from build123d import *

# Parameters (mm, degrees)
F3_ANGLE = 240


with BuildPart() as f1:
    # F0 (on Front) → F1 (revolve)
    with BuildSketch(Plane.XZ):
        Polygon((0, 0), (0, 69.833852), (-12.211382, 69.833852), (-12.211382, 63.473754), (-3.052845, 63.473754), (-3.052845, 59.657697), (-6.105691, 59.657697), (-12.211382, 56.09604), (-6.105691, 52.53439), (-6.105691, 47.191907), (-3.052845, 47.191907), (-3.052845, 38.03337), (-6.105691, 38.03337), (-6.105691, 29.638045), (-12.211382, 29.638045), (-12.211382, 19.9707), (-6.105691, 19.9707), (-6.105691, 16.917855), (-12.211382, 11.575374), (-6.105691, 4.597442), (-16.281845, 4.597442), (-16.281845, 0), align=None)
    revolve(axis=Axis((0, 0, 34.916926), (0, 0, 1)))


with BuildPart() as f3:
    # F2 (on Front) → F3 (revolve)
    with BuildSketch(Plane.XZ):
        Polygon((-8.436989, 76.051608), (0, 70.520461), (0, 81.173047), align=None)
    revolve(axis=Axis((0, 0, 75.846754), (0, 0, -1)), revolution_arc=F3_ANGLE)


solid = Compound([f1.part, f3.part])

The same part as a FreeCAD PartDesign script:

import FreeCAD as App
import Part
import Sketcher

V = App.Vector
Q = App.Units.Quantity

doc = App.newDocument("Part")
body = doc.addObject("PartDesign::Body", "Body")

sketch1 = body.newObject("Sketcher::SketchObject", "Sketch")
sketch1.AttachmentSupport = (doc.getObject("XZ_Plane"), [""])
sketch1.MapMode = "FlatFace"
sketch1.addGeometry([
    Part.LineSegment(V(0, 0, 0), V(0, 69.833852, 0)),
    Part.LineSegment(V(0, 69.833852, 0), V(-12.211382, 69.833852, 0)),
    Part.LineSegment(V(-12.211382, 69.833852, 0), V(-12.211382, 63.473754, 0)),
    Part.LineSegment(V(-12.211382, 63.473754, 0), V(-3.052845, 63.473754, 0)),
    Part.LineSegment(V(-3.052845, 63.473754, 0), V(-3.052845, 59.657697, 0)),
    Part.LineSegment(V(-3.052845, 59.657697, 0), V(-6.105691, 59.657697, 0)),
    Part.LineSegment(V(-6.105691, 59.657697, 0), V(-12.211382, 56.09604, 0)),
    Part.LineSegment(V(-12.211382, 56.09604, 0), V(-6.105691, 52.53439, 0)),
    Part.LineSegment(V(-6.105691, 52.53439, 0), V(-6.105691, 47.191907, 0)),
    Part.LineSegment(V(-6.105691, 47.191907, 0), V(-3.052845, 47.191907, 0)),
    Part.LineSegment(V(-3.052845, 47.191907, 0), V(-3.052845, 38.03337, 0)),
    Part.LineSegment(V(-3.052845, 38.03337, 0), V(-6.105691, 38.03337, 0)),
    Part.LineSegment(V(-6.105691, 38.03337, 0), V(-6.105691, 29.638045, 0)),
    Part.LineSegment(V(-6.105691, 29.638045, 0), V(-12.211382, 29.638045, 0)),
    Part.LineSegment(V(-12.211382, 29.638045, 0), V(-12.211382, 19.9707, 0)),
    Part.LineSegment(V(-12.211382, 19.9707, 0), V(-6.105691, 19.9707, 0)),
    Part.LineSegment(V(-6.105691, 19.9707, 0), V(-6.105691, 16.917855, 0)),
    Part.LineSegment(V(-6.105691, 16.917855, 0), V(-12.211382, 11.575374, 0)),
    Part.LineSegment(V(-12.211382, 11.575374, 0), V(-6.105691, 4.597442, 0)),
    Part.LineSegment(V(-6.105691, 4.597442, 0), V(-16.281845, 4.597442, 0)),
    Part.LineSegment(V(-16.281845, 4.597442, 0), V(-16.281845, 0, 0)),
    Part.LineSegment(V(-16.281845, 0, 0), V(0, 0, 0)),
], False)
sketch1.addConstraint([
    Sketcher.Constraint("Coincident", 0, 2, 1, 1),
    Sketcher.Constraint("Coincident", 1, 2, 2, 1),
    Sketcher.Constraint("Coincident", 2, 2, 3, 1),
    Sketcher.Constraint("Coincident", 3, 2, 4, 1),
    Sketcher.Constraint("Coincident", 4, 2, 5, 1),
    Sketcher.Constraint("Coincident", 5, 2, 6, 1),
    Sketcher.Constraint("Coincident", 6, 2, 7, 1),
    Sketcher.Constraint("Coincident", 7, 2, 8, 1),
    Sketcher.Constraint("Coincident", 8, 2, 9, 1),
    Sketcher.Constraint("Coincident", 9, 2, 10, 1),
    Sketcher.Constraint("Coincident", 10, 2, 11, 1),
    Sketcher.Constraint("Coincident", 11, 2, 12, 1),
    Sketcher.Constraint("Coincident", 12, 2, 13, 1),
    Sketcher.Constraint("Coincident", 13, 2, 14, 1),
    Sketcher.Constraint("Coincident", 14, 2, 15, 1),
    Sketcher.Constraint("Coincident", 15, 2, 16, 1),
    Sketcher.Constraint("Coincident", 16, 2, 17, 1),
    Sketcher.Constraint("Coincident", 17, 2, 18, 1),
    Sketcher.Constraint("Coincident", 18, 2, 19, 1),
    Sketcher.Constraint("Coincident", 19, 2, 20, 1),
    Sketcher.Constraint("Coincident", 20, 2, 21, 1),
    Sketcher.Constraint("Coincident", 21, 2, 0, 1),
    Sketcher.Constraint("Vertical", 0),
    Sketcher.Constraint("Horizontal", 1),
    Sketcher.Constraint("Vertical", 2),
    Sketcher.Constraint("Horizontal", 3),
    Sketcher.Constraint("Vertical", 4),
    Sketcher.Constraint("Horizontal", 5),
    Sketcher.Constraint("Vertical", 8),
    Sketcher.Constraint("Horizontal", 9),
    Sketcher.Constraint("Vertical", 10),
    Sketcher.Constraint("Horizontal", 11),
    Sketcher.Constraint("Vertical", 12),
    Sketcher.Constraint("Horizontal", 13),
    Sketcher.Constraint("Vertical", 14),
    Sketcher.Constraint("Horizontal", 15),
    Sketcher.Constraint("Vertical", 16),
    Sketcher.Constraint("Horizontal", 19),
    Sketcher.Constraint("Vertical", 20),
    Sketcher.Constraint("Horizontal", 21),
    Sketcher.Constraint("Coincident", 21, 2, -1, 1),
    Sketcher.Constraint("Perpendicular", 17, 18),
    Sketcher.Constraint("Vertical", 2, 2, 6, 2),
    Sketcher.Constraint("Vertical", 5, 2, 7, 2),
    Sketcher.Constraint("Vertical", 4, 2, 9, 2),
    Sketcher.Constraint("Vertical", 8, 2, 11, 2),
    Sketcher.Constraint("Vertical", 6, 2, 13, 2),
    Sketcher.Constraint("Vertical", 12, 2, 15, 2),
    Sketcher.Constraint("Vertical", 14, 2, 17, 2),
    Sketcher.Constraint("Vertical", 16, 2, 18, 2),
    Sketcher.Constraint("Equal", 3, 10),
    Sketcher.Constraint("Equal", 11, 16),
    Sketcher.Constraint("DistanceX", 13, 2, 13, 1, Q("6.105691 mm")),
    Sketcher.Constraint("DistanceY", 0, 1, 0, 2, Q("69.833852 mm")),
    Sketcher.Constraint("DistanceY", -1, 1, 14, 2, Q("19.9707 mm")),
    Sketcher.Constraint("Distance", 7, Q("7.068579 mm")),
    Sketcher.Constraint("Distance", 17, Q("8.113049 mm")),
    Sketcher.Constraint("DistanceX", 1, 2, 1, 1, Q("12.211382 mm")),
    Sketcher.Constraint("DistanceX", 3, 1, 3, 2, Q("9.158537 mm")),
    Sketcher.Constraint("DistanceX", 19, 2, 19, 1, Q("10.176154 mm")),
    Sketcher.Constraint("DistanceY", 2, 2, 2, 1, Q("6.360098 mm")),
    Sketcher.Constraint("DistanceY", 4, 2, 4, 1, Q("3.816057 mm")),
    Sketcher.Constraint("DistanceY", 8, 2, 8, 1, Q("5.342483 mm")),
    Sketcher.Constraint("DistanceY", 12, 2, 12, 1, Q("8.395325 mm")),
    Sketcher.Constraint("DistanceY", 14, 2, 14, 1, Q("9.667345 mm")),
])
revolution = body.newObject("PartDesign::Revolution", "Revolution")
revolution.Profile = sketch1
revolution.ReferenceAxis = (sketch1, ["V_Axis"])
revolution.Angle = 360
body2 = doc.addObject("PartDesign::Body", "Body001")

sketch2 = body2.newObject("Sketcher::SketchObject", "Sketch001")
sketch2.AttachmentSupport = (doc.getObject("XZ_Plane001"), [""])
sketch2.MapMode = "FlatFace"
sketch2.addGeometry([
    Part.LineSegment(V(-8.436989, 76.051608, 0), V(0, 70.520461, 0)),
    Part.LineSegment(V(0, 70.520461, 0), V(0, 81.173047, 0)),
    Part.LineSegment(V(0, 81.173047, 0), V(-8.436989, 76.051608, 0)),
], False)
sketch2.addConstraint([
    Sketcher.Constraint("Coincident", 0, 2, 1, 1),
    Sketcher.Constraint("Coincident", 1, 2, 2, 1),
    Sketcher.Constraint("Coincident", 2, 2, 0, 1),
    Sketcher.Constraint("Vertical", 1),
    Sketcher.Constraint("PointOnObject", 0, 2, -2),
    Sketcher.Constraint("DistanceY", 1, 1, 1, 2, Q("10.652586 mm")),
    Sketcher.Constraint("DistanceY", -1, 1, 0, 2, Q("70.520461 mm")),
    Sketcher.Constraint("DistanceX", 2, 2, -1, 1, Q("8.436989 mm")),
    Sketcher.Constraint("DistanceY", -1, 1, 2, 2, Q("76.051608 mm")),
])
revolution2 = body2.newObject("PartDesign::Revolution", "Revolution001")
revolution2.Profile = sketch2
revolution2.ReferenceAxis = (sketch2, ["V_Axis"])
revolution2.Angle = 240
revolution2.Reversed = True

doc.recompute()
